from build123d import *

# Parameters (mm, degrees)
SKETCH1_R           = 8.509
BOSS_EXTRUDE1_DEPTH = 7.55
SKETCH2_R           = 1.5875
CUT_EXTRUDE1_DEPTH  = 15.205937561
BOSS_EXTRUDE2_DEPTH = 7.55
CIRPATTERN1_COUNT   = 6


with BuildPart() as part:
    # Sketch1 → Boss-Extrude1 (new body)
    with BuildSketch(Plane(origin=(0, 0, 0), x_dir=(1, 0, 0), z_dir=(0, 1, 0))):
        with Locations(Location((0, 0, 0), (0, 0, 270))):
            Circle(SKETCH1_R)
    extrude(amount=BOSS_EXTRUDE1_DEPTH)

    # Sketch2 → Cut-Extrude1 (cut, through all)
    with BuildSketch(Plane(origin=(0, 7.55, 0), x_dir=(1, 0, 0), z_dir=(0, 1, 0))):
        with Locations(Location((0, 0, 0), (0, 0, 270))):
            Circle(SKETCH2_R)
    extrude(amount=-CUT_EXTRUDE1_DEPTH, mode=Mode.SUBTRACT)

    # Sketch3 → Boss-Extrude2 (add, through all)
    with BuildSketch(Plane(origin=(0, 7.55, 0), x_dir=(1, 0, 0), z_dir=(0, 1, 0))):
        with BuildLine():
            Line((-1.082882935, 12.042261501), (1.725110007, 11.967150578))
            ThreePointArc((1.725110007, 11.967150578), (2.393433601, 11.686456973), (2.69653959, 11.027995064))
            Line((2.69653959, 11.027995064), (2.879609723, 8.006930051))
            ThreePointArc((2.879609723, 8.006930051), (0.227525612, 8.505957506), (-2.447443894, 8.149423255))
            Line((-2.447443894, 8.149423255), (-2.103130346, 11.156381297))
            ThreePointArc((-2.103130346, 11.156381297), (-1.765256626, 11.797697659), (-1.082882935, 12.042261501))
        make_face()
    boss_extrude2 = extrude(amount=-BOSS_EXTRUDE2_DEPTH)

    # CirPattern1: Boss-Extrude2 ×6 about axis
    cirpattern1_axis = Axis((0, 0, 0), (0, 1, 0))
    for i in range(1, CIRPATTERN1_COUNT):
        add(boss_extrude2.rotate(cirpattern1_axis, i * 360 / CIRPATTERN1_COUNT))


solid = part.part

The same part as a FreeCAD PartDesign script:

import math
import FreeCAD as App
import Part
import Sketcher
from FreeCAD import Vector
Q = App.Units.Quantity

doc = App.newDocument("Part")
body = doc.addObject("PartDesign::Body", "Body")

# Sketch on XZ plane
sketch1 = body.newObject("Sketcher::SketchObject", "Sketch")
sketch1.AttachmentSupport = (doc.getObject("XZ_Plane"), [""])
sketch1.MapMode = "FlatFace"
sketch1.addGeometry(Part.Circle(Vector(0, 0, 0), Vector(0, 0, 1), 8.509), False)
sketch1.addConstraint(Sketcher.Constraint("Coincident", 0, 3, -1, 1))
sketch1.addConstraint(Sketcher.Constraint("Diameter", 0, Q("0.67 in")))
pad1 = body.newObject("PartDesign::Pad", "Pad")
pad1.Profile = sketch1
pad1.Length = 7.55
pad1.Reversed = True

# Sketch on XZ plane
sketch2 = body.newObject("Sketcher::SketchObject", "Sketch001")
sketch2.AttachmentSupport = (doc.getObject("XZ_Plane"), [""])
sketch2.MapMode = "FlatFace"
sketch2.AttachmentOffset = App.Placement(Vector(0, 0, -7.55), App.Rotation())
sketch2.addGeometry(Part.Circle(Vector(0, 0, 0), Vector(0, 0, 1), 1.5875), False)
sketch2.addConstraint(Sketcher.Constraint("Coincident", 0, 3, -1, 1))
sketch2.addConstraint(Sketcher.Constraint("Diameter", 0, Q("0.125 in")))
pocket1 = body.newObject("PartDesign::Pocket", "Pocket")
pocket1.Profile = sketch2
pocket1.Type = "ThroughAll"
pocket1.Reversed = True

# Sketch on XZ plane
sketch3 = body.newObject("Sketcher::SketchObject", "Sketch002")
sketch3.AttachmentSupport = (doc.getObject("XZ_Plane"), [""])
sketch3.MapMode = "FlatFace"
sketch3.AttachmentOffset = App.Placement(Vector(0, 0, -7.55), App.Rotation())
sketch3.addGeometry(Part.LineSegment(Vector(1.72511, -11.967151, 0), Vector(-1.082883, -12.042262, 0)), False)
sketch3.addGeometry(Part.ArcOfCircle(Part.Circle(Vector(-1.109622, -11.042619, 0), Vector(0, 0, 1), 1), math.radians(-173.467762), math.radians(-88.467762)), False)
sketch3.addGeometry(Part.LineSegment(Vector(-2.10313, -11.156381, 0), Vector(-2.447444, -8.149423, 0)), False)
sketch3.addGeometry(Part.ArcOfCircle(Part.Circle(Vector(0, 0, 0), Vector(0, 0, 1), 8.509), math.radians(-106.716122), math.radians(-70.219402)), False)
sketch3.addGeometry(Part.LineSegment(Vector(2.87961, -8.00693, 0), Vector(2.69654, -11.027995, 0)), False)
sketch3.addGeometry(Part.ArcOfCircle(Part.Circle(Vector(1.698371, -10.967508, 0), Vector(0, 0, 1), 1), math.radians(-88.467762), math.radians(-3.467762)), False)
sketch3.addConstraint(Sketcher.Constraint("Tangent", 0, 2, 1, 2))
sketch3.addConstraint(Sketcher.Constraint("Tangent", 1, 1, 2, 1))
sketch3.addConstraint(Sketcher.Constraint("Coincident", 2, 2, 3, 1))
sketch3.addConstraint(Sketcher.Constraint("Coincident", 3, 2, 4, 1))
sketch3.addConstraint(Sketcher.Constraint("Tangent", 4, 2, 5, 2))
sketch3.addConstraint(Sketcher.Constraint("Tangent", 5, 1, 0, 1))
sketch3.addConstraint(Sketcher.Constraint("Coincident", 3, 3, -1, 1))
sketch3.addConstraint(Sketcher.Constraint("Equal", 1, 5))
sketch3.addConstraint(Sketcher.Constraint("Equal", 2, 4))
sketch3.addConstraint(Sketcher.Constraint("Radius", 3, Q("0.335 in")))
sketch3.addConstraint(Sketcher.Constraint("Radius", 1, Q("1 mm")))
sketch3.addConstraint(Sketcher.Constraint("DistanceX", 1, 1, 5, 3, Q("3.801501 mm")))
sketch3.addConstraint(Sketcher.Constraint("DistanceY", 1, 3, -1, 1, Q("11.042619 mm")))
sketch3.addConstraint(Sketcher.Constraint("DistanceX", -1, 1, 5, 3, Q("1.698371 mm")))
sketch3.addConstraint(Sketcher.Constraint("DistanceY", 5, 3, -1, 1, Q("10.967508 mm")))
sketch3.addConstraint(Sketcher.Constraint("DistanceY", 1, 1, -1, 1, Q("11.156381 mm")))
pad2 = body.newObject("PartDesign::Pad", "Pad001")
pad2.Profile = sketch3
pad2.Length = 7.55
doc.recompute()

polarpattern = body.newObject("PartDesign::PolarPattern", "PolarPattern")
polarpattern.Originals = [pad2]
polarpattern.Axis = (doc.getObject("Y_Axis"), [""])
polarpattern.Angle = 360
polarpattern.Occurrences = 6
body.Tip = polarpattern

doc.recompute()
